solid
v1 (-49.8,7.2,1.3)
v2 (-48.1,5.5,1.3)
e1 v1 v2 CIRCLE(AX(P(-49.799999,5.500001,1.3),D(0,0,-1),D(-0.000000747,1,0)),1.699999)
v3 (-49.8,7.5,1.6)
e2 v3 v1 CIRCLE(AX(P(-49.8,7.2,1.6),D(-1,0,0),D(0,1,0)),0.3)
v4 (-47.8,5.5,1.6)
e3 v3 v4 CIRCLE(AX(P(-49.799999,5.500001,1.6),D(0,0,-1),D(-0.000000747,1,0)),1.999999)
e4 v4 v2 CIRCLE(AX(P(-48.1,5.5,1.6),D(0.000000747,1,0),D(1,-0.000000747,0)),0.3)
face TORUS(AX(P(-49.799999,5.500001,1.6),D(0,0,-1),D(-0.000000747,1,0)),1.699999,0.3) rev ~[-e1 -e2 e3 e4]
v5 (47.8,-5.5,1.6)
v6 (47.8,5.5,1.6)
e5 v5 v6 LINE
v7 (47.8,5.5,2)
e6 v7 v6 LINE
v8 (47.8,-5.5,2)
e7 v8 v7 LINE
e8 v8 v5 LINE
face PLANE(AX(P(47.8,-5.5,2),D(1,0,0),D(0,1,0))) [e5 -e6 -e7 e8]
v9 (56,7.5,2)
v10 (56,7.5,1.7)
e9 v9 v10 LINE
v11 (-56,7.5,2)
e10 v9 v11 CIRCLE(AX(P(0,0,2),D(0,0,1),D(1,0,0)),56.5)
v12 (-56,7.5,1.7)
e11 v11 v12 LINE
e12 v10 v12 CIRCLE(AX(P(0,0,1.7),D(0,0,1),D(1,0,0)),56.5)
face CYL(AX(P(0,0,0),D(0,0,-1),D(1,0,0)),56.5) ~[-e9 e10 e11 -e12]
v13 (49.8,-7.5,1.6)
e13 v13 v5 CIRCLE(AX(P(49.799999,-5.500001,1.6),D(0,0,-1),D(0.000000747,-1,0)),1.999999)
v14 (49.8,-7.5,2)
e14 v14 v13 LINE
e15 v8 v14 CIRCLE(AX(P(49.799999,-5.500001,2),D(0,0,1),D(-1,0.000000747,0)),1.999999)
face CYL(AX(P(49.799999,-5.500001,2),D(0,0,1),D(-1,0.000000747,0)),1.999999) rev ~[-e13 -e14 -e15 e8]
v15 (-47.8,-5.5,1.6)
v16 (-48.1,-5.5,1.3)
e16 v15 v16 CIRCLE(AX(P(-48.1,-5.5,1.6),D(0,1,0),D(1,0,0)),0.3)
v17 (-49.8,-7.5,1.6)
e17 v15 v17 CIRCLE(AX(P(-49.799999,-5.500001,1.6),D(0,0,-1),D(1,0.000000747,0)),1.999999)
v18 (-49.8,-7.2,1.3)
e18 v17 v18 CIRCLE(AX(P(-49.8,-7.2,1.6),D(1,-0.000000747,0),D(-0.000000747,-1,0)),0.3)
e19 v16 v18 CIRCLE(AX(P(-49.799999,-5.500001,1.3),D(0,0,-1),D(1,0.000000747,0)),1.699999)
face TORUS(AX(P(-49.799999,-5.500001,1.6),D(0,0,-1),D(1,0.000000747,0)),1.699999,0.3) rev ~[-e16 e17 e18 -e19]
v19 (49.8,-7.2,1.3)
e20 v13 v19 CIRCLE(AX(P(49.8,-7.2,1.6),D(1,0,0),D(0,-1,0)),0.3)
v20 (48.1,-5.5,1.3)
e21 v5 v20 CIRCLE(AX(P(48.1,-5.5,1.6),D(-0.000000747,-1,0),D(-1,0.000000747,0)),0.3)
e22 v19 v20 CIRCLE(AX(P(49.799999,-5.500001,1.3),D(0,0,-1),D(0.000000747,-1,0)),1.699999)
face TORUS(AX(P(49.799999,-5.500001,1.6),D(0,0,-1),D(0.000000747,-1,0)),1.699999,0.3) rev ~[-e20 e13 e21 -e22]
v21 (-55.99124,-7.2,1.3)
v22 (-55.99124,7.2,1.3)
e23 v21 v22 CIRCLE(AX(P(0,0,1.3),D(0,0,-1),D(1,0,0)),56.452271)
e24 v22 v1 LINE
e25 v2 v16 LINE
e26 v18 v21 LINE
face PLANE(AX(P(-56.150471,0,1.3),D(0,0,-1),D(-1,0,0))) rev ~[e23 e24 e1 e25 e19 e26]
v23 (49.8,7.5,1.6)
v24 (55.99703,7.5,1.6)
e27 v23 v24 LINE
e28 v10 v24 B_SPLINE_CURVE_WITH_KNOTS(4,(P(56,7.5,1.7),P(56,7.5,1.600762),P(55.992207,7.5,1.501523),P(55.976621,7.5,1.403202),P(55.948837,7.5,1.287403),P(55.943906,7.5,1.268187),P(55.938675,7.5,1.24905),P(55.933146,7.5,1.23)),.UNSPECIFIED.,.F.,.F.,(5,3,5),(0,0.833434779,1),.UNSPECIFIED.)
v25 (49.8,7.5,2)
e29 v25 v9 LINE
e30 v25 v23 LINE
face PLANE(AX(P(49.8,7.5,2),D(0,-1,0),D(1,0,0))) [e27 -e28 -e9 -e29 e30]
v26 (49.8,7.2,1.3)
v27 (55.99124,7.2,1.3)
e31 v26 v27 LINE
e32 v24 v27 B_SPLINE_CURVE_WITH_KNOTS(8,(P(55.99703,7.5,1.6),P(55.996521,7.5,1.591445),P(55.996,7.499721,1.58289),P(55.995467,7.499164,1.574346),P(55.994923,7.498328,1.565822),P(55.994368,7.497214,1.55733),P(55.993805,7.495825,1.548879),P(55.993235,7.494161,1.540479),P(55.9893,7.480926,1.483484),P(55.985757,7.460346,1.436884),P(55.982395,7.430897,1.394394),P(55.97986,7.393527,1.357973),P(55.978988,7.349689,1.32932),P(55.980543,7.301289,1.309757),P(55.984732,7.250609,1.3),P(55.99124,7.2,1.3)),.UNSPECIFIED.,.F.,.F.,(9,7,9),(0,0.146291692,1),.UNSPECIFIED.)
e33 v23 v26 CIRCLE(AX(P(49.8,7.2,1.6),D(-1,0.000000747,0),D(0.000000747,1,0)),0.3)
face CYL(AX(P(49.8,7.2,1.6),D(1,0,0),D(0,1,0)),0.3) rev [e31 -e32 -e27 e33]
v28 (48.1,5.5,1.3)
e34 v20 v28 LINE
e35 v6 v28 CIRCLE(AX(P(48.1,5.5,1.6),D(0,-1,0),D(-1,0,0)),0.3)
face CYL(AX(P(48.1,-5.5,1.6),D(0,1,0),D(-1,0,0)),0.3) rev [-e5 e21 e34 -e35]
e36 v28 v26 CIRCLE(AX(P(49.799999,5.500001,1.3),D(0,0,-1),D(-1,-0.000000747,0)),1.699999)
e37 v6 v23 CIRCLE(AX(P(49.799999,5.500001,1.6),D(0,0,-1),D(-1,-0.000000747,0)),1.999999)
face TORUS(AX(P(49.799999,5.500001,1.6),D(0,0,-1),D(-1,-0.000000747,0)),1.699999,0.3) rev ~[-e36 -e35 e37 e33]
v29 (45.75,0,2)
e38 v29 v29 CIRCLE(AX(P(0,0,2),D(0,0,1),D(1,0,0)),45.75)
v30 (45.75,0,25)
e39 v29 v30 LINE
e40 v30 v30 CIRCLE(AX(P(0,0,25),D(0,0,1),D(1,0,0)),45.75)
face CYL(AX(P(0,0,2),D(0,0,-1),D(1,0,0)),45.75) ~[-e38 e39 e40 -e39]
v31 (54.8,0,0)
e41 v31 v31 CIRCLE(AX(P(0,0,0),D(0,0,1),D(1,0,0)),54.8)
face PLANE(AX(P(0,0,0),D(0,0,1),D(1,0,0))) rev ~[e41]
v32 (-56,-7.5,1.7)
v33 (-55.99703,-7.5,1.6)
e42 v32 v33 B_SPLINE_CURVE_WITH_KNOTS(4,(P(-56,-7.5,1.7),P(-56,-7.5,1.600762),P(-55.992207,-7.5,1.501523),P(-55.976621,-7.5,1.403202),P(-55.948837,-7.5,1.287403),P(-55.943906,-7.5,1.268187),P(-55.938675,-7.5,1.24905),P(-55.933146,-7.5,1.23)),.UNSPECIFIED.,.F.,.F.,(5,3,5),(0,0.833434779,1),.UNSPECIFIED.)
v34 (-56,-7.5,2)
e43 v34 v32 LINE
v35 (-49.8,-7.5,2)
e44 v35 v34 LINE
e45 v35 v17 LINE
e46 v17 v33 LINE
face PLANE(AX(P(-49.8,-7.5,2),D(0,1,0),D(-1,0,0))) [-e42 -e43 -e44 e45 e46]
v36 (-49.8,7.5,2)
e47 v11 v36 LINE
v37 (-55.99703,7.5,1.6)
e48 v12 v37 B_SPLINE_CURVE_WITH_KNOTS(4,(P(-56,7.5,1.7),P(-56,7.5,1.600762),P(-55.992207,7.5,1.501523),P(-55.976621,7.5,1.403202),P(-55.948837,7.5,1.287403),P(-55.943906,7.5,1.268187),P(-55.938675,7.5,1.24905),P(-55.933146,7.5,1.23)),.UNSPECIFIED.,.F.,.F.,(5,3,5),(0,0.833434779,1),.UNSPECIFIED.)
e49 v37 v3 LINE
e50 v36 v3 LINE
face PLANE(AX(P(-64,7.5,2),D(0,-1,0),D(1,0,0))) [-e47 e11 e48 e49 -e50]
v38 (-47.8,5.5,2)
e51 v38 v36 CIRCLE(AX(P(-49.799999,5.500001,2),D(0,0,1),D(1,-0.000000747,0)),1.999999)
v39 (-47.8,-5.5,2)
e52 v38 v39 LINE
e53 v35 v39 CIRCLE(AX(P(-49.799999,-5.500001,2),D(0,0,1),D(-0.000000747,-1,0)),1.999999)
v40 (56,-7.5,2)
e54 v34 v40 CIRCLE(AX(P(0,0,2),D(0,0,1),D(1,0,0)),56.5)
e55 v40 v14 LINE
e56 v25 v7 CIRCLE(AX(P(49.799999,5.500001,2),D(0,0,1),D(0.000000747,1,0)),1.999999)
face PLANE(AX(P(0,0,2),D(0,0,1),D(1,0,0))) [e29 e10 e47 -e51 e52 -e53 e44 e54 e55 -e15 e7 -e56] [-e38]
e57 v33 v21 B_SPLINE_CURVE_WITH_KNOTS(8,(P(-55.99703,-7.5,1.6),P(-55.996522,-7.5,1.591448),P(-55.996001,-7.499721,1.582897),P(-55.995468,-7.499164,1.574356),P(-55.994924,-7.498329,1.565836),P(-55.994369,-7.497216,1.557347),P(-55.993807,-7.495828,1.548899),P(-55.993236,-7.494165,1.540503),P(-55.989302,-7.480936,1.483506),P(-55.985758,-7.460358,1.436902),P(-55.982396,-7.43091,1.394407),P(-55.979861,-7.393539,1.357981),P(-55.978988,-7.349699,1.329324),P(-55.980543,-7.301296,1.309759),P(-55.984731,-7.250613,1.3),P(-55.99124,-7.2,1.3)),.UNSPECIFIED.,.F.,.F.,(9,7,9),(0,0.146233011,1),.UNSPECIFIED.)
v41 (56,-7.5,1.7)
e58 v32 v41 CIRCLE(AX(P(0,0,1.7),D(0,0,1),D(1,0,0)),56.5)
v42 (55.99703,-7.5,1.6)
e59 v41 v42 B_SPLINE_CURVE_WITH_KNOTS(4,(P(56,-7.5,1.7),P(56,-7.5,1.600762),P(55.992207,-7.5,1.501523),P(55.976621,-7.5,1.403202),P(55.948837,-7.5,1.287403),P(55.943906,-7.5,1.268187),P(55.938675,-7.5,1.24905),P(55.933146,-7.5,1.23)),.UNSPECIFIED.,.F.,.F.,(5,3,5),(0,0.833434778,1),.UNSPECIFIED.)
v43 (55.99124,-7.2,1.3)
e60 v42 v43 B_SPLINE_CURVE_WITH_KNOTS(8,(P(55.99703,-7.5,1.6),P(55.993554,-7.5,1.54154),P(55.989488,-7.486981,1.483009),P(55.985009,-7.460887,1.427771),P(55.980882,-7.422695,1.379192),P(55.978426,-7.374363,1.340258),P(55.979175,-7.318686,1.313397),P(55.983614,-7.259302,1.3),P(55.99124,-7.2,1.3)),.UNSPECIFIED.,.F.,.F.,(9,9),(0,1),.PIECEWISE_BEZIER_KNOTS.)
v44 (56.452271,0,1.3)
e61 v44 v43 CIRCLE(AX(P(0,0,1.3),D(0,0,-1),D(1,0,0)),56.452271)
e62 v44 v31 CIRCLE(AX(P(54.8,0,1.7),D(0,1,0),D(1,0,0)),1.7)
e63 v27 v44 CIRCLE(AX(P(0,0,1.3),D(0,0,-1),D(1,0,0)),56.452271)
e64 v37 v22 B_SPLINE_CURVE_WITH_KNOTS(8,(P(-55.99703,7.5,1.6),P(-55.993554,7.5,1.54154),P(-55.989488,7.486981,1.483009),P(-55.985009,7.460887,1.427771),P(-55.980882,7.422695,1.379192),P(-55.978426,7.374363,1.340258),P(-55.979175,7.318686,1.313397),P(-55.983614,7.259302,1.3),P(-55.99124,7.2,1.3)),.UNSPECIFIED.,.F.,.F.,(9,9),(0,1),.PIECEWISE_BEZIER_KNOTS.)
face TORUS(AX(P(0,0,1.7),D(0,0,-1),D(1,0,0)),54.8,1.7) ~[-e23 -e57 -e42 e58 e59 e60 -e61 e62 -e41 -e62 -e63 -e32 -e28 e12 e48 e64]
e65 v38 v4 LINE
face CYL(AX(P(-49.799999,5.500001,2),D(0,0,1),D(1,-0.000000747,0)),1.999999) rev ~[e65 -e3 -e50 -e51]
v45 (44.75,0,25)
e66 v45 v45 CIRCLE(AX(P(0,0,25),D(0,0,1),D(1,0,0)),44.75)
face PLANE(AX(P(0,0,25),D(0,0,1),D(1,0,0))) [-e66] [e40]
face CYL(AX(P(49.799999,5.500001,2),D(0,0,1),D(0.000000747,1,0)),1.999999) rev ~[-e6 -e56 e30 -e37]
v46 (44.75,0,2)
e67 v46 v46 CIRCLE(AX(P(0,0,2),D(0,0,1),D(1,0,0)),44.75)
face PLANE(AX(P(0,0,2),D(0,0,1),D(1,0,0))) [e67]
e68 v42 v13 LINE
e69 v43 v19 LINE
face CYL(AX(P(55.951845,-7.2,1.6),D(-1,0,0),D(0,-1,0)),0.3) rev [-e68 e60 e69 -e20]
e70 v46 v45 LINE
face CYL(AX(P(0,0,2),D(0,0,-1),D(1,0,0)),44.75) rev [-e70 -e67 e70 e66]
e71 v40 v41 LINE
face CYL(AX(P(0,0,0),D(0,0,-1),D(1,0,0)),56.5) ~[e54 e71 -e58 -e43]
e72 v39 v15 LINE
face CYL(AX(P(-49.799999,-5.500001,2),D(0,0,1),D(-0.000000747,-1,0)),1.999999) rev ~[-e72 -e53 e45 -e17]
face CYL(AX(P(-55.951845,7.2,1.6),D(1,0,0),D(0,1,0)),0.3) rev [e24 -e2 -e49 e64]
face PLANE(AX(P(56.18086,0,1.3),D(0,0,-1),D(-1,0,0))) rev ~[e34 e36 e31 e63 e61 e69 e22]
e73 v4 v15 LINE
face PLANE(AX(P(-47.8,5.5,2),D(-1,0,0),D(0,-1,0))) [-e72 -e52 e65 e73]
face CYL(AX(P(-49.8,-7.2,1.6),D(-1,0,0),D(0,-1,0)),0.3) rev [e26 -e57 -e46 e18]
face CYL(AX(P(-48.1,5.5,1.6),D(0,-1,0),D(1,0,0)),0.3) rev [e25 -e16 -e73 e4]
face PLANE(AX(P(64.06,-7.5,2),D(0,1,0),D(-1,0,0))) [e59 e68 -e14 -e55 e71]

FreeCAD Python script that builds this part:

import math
import FreeCAD as App
import Part
import Sketcher

V = App.Vector
Q = App.Units.Quantity


def edges_at(feature, points):
    """Names of the edges that pass closest to the given points."""
    edges = feature.Shape.Edges
    near = lambda p: min(range(len(edges)), key=lambda i: edges[i].distToShape(Part.Vertex(*p))[0])
    return sorted({f"Edge{near(p) + 1}" for p in points})

doc = App.newDocument("Part")
body = doc.addObject("PartDesign::Body", "Body")

sketch1 = body.newObject("Sketcher::SketchObject", "Sketch")
sketch1.AttachmentSupport = (doc.getObject("XY_Plane"), [""])
sketch1.MapMode = "FlatFace"
sketch1.addGeometry(Part.Circle(V(0, 0, 0), V(0, 0, 1), 56), False)
sketch1.addConstraint(Sketcher.Constraint("Coincident", 0, 3, -1, 1))
sketch1.addConstraint(Sketcher.Constraint("Diameter", 0, Q("113 mm")))
pad1 = body.newObject("PartDesign::Pad", "Pad")
pad1.Profile = sketch1
pad1.Length = 2
doc.recompute()

fillet = body.newObject("PartDesign::Fillet", "Fillet")
fillet.Base = (pad1, edges_at(pad1, [(-56.5, 0, 0)]))
fillet.Radius = 1.7

sketch2 = body.newObject("Sketcher::SketchObject", "Sketch001")
sketch2.AttachmentSupport = (doc.getObject("XY_Plane"), [""])
sketch2.MapMode = "FlatFace"
sketch2.AttachmentOffset = App.Placement(V(0, 0, 2), App.Rotation())
sketch2.addGeometry(Part.Circle(V(0, 0, 0), V(0, 0, 1), 46), False)
sketch2.addGeometry(Part.Circle(V(0, 0, 0), V(0, 0, 1), 45), False)
sketch2.addConstraint(Sketcher.Constraint("Coincident", 0, 3, -1, 1))
sketch2.addConstraint(Sketcher.Constraint("Coincident", 1, 3, -1, 1))
sketch2.addConstraint(Sketcher.Constraint("Diameter", 0, Q("91.5 mm")))
sketch2.addConstraint(Sketcher.Constraint("Diameter", 1, Q("89.5 mm")))
pad2 = body.newObject("PartDesign::Pad", "Pad001")
pad2.Profile = sketch2
pad2.Length = 23

sketch3 = body.newObject("Sketcher::SketchObject", "Sketch002")
sketch3.AttachmentSupport = (doc.getObject("XY_Plane"), [""])
sketch3.MapMode = "FlatFace"
sketch3.AttachmentOffset = App.Placement(V(0, 0, 2), App.Rotation())
sketch3.addGeometry(Part.LineSegment(V(-49.8, 7.5, 0), V(-64, 7.5, 0)), False)
sketch3.addGeometry(Part.LineSegment(V(-64, 7.5, 0), V(-64, -7.5, 0)), False)
sketch3.addGeometry(Part.LineSegment(V(-64, -7.5, 0), V(-49.8, -7.5, 0)), False)
sketch3.addGeometry(Part.ArcOfCircle(Part.Circle(V(-49.8, -5.5, 0), V(0, 0, 1), 2), math.radians(-90), math.radians(0)), False)
sketch3.addGeometry(Part.LineSegment(V(-47.8, -5.5, 0), V(-47.8, 5.5, 0)), False)
sketch3.addGeometry(Part.ArcOfCircle(Part.Circle(V(-49.8, 5.5, 0), V(0, 0, 1), 2), math.radians(0), math.radians(90)), False)
sketch3.addGeometry(Part.LineSegment(V(64.1, 7.5, 0), V(49.8, 7.5, 0)), False)
sketch3.addGeometry(Part.ArcOfCircle(Part.Circle(V(49.8, 5.5, 0), V(0, 0, 1), 2), math.radians(90), math.radians(180)), False)
sketch3.addGeometry(Part.LineSegment(V(47.8, 5.5, 0), V(47.8, -5.5, 0)), False)
sketch3.addGeometry(Part.ArcOfCircle(Part.Circle(V(49.8, -5.5, 0), V(0, 0, 1), 2), math.radians(180), math.radians(270)), False)
sketch3.addGeometry(Part.LineSegment(V(49.8, -7.5, 0), V(64.1, -7.5, 0)), False)
sketch3.addGeometry(Part.LineSegment(V(64.1, -7.5, 0), V(64.1, 7.5, 0)), False)
sketch3.addConstraint(Sketcher.Constraint("Coincident", 0, 2, 1, 1))
sketch3.addConstraint(Sketcher.Constraint("Coincident", 1, 2, 2, 1))
sketch3.addConstraint(Sketcher.Constraint("Tangent", 2, 2, 3, 1))
sketch3.addConstraint(Sketcher.Constraint("Tangent", 3, 2, 4, 1))
sketch3.addConstraint(Sketcher.Constraint("Tangent", 4, 2, 5, 1))
sketch3.addConstraint(Sketcher.Constraint("Tangent", 5, 2, 0, 1))
sketch3.addConstraint(Sketcher.Constraint("Tangent", 6, 2, 7, 1))
sketch3.addConstraint(Sketcher.Constraint("Tangent", 7, 2, 8, 1))
sketch3.addConstraint(Sketcher.Constraint("Tangent", 8, 2, 9, 1))
sketch3.addConstraint(Sketcher.Constraint("Tangent", 9, 2, 10, 1))
sketch3.addConstraint(Sketcher.Constraint("Coincident", 10, 2, 11, 1))
sketch3.addConstraint(Sketcher.Constraint("Coincident", 11, 2, 6, 1))
sketch3.addConstraint(Sketcher.Constraint("Horizontal", 0))
sketch3.addConstraint(Sketcher.Constraint("Vertical", 1))
sketch3.addConstraint(Sketcher.Constraint("Horizontal", 2))
sketch3.addConstraint(Sketcher.Constraint("Vertical", 4))
sketch3.addConstraint(Sketcher.Constraint("Horizontal", 6))
sketch3.addConstraint(Sketcher.Constraint("Vertical", 8))
sketch3.addConstraint(Sketcher.Constraint("Horizontal", 10))
sketch3.addConstraint(Sketcher.Constraint("Vertical", 11))
sketch3.addConstraint(Sketcher.Constraint("Equal", 3, 5))
sketch3.addConstraint(Sketcher.Constraint("Equal", 5, 7))
sketch3.addConstraint(Sketcher.Constraint("Equal", 7, 9))
sketch3.addConstraint(Sketcher.Constraint("Symmetric", 3, 3, 7, 3, -1, 1))
sketch3.addConstraint(Sketcher.Constraint("Horizontal", 5, 3, 7, 3))
sketch3.addConstraint(Sketcher.Constraint("Horizontal", 3, 3, 9, 3))
sketch3.addConstraint(Sketcher.Constraint("Radius", 3, Q("1.999999 mm")))
sketch3.addConstraint(Sketcher.Constraint("DistanceY", 1, 2, 1, 1, Q("15 mm")))
sketch3.addConstraint(Sketcher.Constraint("DistanceX", 0, 2, 0, 1, Q("14.2 mm")))
sketch3.addConstraint(Sketcher.Constraint("DistanceX", 0, 2, -1, 1, Q("64 mm")))
sketch3.addConstraint(Sketcher.Constraint("DistanceX", 6, 2, 6, 1, Q("14.26 mm")))
pocket1 = body.newObject("PartDesign::Pocket", "Pocket")
pocket1.Profile = sketch3
pocket1.Length = 0.7
doc.recompute()

fillet2 = body.newObject("PartDesign::Fillet", "Fillet001")
fillet2.Base = (pocket1, edges_at(pocket1, [
    (52.876, 7.5, 1.3),
    (48.386, 6.914, 1.3),
    (47.8, 0, 1.3),
    (48.386, -6.914, 1.3),
    (52.876, -7.5, 1.3),
    (-52.876, 7.5, 1.3),
    (-48.386, 6.914, 1.3),
    (-47.8, 0, 1.3),
    (-48.386, -6.914, 1.3),
    (-52.876, -7.5, 1.3),
]))
fillet2.Radius = 0.3

doc.recompute()
